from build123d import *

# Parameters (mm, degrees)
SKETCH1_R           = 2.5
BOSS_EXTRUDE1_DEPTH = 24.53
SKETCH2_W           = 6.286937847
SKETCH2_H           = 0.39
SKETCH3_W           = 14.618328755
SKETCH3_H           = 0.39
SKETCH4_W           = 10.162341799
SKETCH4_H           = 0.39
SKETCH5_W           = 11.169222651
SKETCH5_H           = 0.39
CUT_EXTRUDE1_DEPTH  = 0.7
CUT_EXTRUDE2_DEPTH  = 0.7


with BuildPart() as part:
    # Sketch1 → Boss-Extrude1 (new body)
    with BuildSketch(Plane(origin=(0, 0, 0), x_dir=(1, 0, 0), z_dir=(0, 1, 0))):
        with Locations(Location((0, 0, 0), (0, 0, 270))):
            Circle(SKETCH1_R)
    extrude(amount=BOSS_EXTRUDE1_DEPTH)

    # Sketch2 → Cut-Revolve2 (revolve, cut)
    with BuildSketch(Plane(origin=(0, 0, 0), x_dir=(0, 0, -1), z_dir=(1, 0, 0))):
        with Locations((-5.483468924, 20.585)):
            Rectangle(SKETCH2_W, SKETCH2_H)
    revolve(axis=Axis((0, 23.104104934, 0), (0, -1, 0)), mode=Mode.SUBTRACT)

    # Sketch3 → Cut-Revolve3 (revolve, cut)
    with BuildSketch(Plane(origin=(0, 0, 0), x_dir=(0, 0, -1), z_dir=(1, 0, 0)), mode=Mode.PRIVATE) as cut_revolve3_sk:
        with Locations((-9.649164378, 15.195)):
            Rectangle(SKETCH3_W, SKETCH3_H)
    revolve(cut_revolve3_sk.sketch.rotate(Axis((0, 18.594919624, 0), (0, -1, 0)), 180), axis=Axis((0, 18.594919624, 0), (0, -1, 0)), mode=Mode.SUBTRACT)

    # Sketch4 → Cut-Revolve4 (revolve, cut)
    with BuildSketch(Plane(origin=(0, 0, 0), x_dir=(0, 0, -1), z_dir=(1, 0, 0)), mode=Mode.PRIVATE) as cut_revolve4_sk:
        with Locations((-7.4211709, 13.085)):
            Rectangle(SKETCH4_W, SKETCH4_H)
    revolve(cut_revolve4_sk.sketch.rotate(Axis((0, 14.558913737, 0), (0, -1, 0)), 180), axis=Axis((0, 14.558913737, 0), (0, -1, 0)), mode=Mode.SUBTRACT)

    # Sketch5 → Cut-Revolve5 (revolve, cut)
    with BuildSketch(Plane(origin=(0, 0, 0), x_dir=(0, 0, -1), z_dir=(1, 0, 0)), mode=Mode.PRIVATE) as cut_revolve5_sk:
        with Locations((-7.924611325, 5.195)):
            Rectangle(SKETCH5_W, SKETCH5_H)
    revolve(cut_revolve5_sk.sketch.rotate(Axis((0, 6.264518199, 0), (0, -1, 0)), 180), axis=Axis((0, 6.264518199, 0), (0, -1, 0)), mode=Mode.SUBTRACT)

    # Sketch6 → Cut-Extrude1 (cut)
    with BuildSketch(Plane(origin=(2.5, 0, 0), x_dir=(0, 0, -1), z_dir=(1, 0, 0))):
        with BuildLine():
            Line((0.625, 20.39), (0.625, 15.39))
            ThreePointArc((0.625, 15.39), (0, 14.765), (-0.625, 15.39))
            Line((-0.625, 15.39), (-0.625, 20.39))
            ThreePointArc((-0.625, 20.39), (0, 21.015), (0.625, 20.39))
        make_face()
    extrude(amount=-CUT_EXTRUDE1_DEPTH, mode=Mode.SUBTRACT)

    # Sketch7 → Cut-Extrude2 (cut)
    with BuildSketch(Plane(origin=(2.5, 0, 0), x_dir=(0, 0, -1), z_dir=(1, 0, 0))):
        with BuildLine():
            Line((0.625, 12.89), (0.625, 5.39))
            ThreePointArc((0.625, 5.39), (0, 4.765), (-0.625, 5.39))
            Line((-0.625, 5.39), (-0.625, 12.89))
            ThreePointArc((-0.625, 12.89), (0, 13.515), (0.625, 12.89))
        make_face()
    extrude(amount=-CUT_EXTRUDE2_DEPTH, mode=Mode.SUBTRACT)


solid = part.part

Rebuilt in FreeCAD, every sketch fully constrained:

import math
import FreeCAD as App
import Part
import Sketcher
from FreeCAD import Vector

doc = App.newDocument("Part")
body = doc.addObject("PartDesign::Body", "Body")

sketch1 = body.newObject("Sketcher::SketchObject", "Sketch")
sketch1.AttachmentSupport = (doc.getObject("XZ_Plane"), [""])
sketch1.MapMode = "FlatFace"
sketch1.addGeometry(Part.Circle(Vector(0, 0, 0), Vector(0, 0, 1), 2.5), False)
sketch1.addConstraint(Sketcher.Constraint("Coincident", 0, 3, -1, 1))
sketch1.addConstraint(Sketcher.Constraint("Diameter", 0, 5.0))
pad1 = body.newObject("PartDesign::Pad", "Pad")
pad1.Profile = sketch1
pad1.Length = 24.53
pad1.Reversed = True

sketch2 = body.newObject("Sketcher::SketchObject", "Sketch001")
sketch2.AttachmentSupport = (doc.getObject("YZ_Plane"), [""])
sketch2.MapMode = "FlatFace"
sketch2.addGeometry(Part.LineSegment(Vector(20.78, 8.63, 0), Vector(20.39, 8.63, 0)), False)
sketch2.addGeometry(Part.LineSegment(Vector(20.39, 8.63, 0), Vector(20.39, 2.34, 0)), False)
sketch2.addGeometry(Part.LineSegment(Vector(20.39, 2.34, 0), Vector(20.78, 2.34, 0)), False)
sketch2.addGeometry(Part.LineSegment(Vector(20.78, 2.34, 0), Vector(20.78, 8.63, 0)), False)
sketch2.addConstraint(Sketcher.Constraint("Coincident", 0, 2, 1, 1))
sketch2.addConstraint(Sketcher.Constraint("Coincident", 1, 2, 2, 1))
sketch2.addConstraint(Sketcher.Constraint("Coincident", 2, 2, 3, 1))
sketch2.addConstraint(Sketcher.Constraint("Coincident", 3, 2, 0, 1))
sketch2.addConstraint(Sketcher.Constraint("Horizontal", 0))
sketch2.addConstraint(Sketcher.Constraint("Vertical", 1))
sketch2.addConstraint(Sketcher.Constraint("Horizontal", 2))
sketch2.addConstraint(Sketcher.Constraint("Vertical", 3))
sketch2.addConstraint(Sketcher.Constraint("DistanceX", 0, 2, 0, 1, 0.39))
sketch2.addConstraint(Sketcher.Constraint("DistanceX", -1, 1, 0, 2, 20.39))
sketch2.addConstraint(Sketcher.Constraint("DistanceY", -1, 1, 1, 2, 2.34))
sketch2.addConstraint(Sketcher.Constraint("DistanceY", 1, 2, 1, 1, 6.286938))
groove = body.newObject("PartDesign::Groove", "Groove")
groove.Profile = sketch2
groove.ReferenceAxis = (sketch2, ["H_Axis"])
groove.Angle = 360

sketch3 = body.newObject("Sketcher::SketchObject", "Sketch002")
sketch3.AttachmentSupport = (doc.getObject("YZ_Plane"), [""])
sketch3.MapMode = "FlatFace"
sketch3.addGeometry(Part.LineSegment(Vector(15.39, 16.96, 0), Vector(15, 16.96, 0)), False)
sketch3.addGeometry(Part.LineSegment(Vector(15, 16.96, 0), Vector(15, 2.34, 0)), False)
sketch3.addGeometry(Part.LineSegment(Vector(15, 2.34, 0), Vector(15.39, 2.34, 0)), False)
sketch3.addGeometry(Part.LineSegment(Vector(15.39, 2.34, 0), Vector(15.39, 16.96, 0)), False)
sketch3.addConstraint(Sketcher.Constraint("Coincident", 0, 2, 1, 1))
sketch3.addConstraint(Sketcher.Constraint("Coincident", 1, 2, 2, 1))
sketch3.addConstraint(Sketcher.Constraint("Coincident", 2, 2, 3, 1))
sketch3.addConstraint(Sketcher.Constraint("Coincident", 3, 2, 0, 1))
sketch3.addConstraint(Sketcher.Constraint("Horizontal", 0))
sketch3.addConstraint(Sketcher.Constraint("Vertical", 1))
sketch3.addConstraint(Sketcher.Constraint("Horizontal", 2))
sketch3.addConstraint(Sketcher.Constraint("Vertical", 3))
sketch3.addConstraint(Sketcher.Constraint("DistanceX", -1, 1, 0, 2, 15.0))
sketch3.addConstraint(Sketcher.Constraint("DistanceX", 0, 2, 0, 1, 0.39))
sketch3.addConstraint(Sketcher.Constraint("DistanceY", -1, 1, 1, 2, 2.34))
sketch3.addConstraint(Sketcher.Constraint("DistanceY", 1, 2, 1, 1, 14.618329))
groove2 = body.newObject("PartDesign::Groove", "Groove001")
groove2.Profile = sketch3
groove2.ReferenceAxis = (sketch3, ["H_Axis"])
groove2.Angle = 360

sketch4 = body.newObject("Sketcher::SketchObject", "Sketch003")
sketch4.AttachmentSupport = (doc.getObject("YZ_Plane"), [""])
sketch4.MapMode = "FlatFace"
sketch4.addGeometry(Part.LineSegment(Vector(13.28, 12.5, 0), Vector(12.89, 12.5, 0)), False)
sketch4.addGeometry(Part.LineSegment(Vector(12.89, 12.5, 0), Vector(12.89, 2.34, 0)), False)
sketch4.addGeometry(Part.LineSegment(Vector(12.89, 2.34, 0), Vector(13.28, 2.34, 0)), False)
sketch4.addGeometry(Part.LineSegment(Vector(13.28, 2.34, 0), Vector(13.28, 12.5, 0)), False)
sketch4.addConstraint(Sketcher.Constraint("Coincident", 0, 2, 1, 1))
sketch4.addConstraint(Sketcher.Constraint("Coincident", 1, 2, 2, 1))
sketch4.addConstraint(Sketcher.Constraint("Coincident", 2, 2, 3, 1))
sketch4.addConstraint(Sketcher.Constraint("Coincident", 3, 2, 0, 1))
sketch4.addConstraint(Sketcher.Constraint("Horizontal", 0))
sketch4.addConstraint(Sketcher.Constraint("Vertical", 1))
sketch4.addConstraint(Sketcher.Constraint("Horizontal", 2))
sketch4.addConstraint(Sketcher.Constraint("Vertical", 3))
sketch4.addConstraint(Sketcher.Constraint("DistanceX", 0, 2, 0, 1, 0.39))
sketch4.addConstraint(Sketcher.Constraint("DistanceX", -1, 1, 0, 2, 12.89))
sketch4.addConstraint(Sketcher.Constraint("DistanceY", -1, 1, 1, 2, 2.34))
sketch4.addConstraint(Sketcher.Constraint("DistanceY", 1, 2, 1, 1, 10.162342))
groove3 = body.newObject("PartDesign::Groove", "Groove002")
groove3.Profile = sketch4
groove3.ReferenceAxis = (sketch4, ["H_Axis"])
groove3.Angle = 360

sketch5 = body.newObject("Sketcher::SketchObject", "Sketch004")
sketch5.AttachmentSupport = (doc.getObject("YZ_Plane"), [""])
sketch5.MapMode = "FlatFace"
sketch5.addGeometry(Part.LineSegment(Vector(5.39, 13.51, 0), Vector(5, 13.51, 0)), False)
sketch5.addGeometry(Part.LineSegment(Vector(5, 13.51, 0), Vector(5, 2.34, 0)), False)
sketch5.addGeometry(Part.LineSegment(Vector(5, 2.34, 0), Vector(5.39, 2.34, 0)), False)
sketch5.addGeometry(Part.LineSegment(Vector(5.39, 2.34, 0), Vector(5.39, 13.51, 0)), False)
sketch5.addConstraint(Sketcher.Constraint("Coincident", 0, 2, 1, 1))
sketch5.addConstraint(Sketcher.Constraint("Coincident", 1, 2, 2, 1))
sketch5.addConstraint(Sketcher.Constraint("Coincident", 2, 2, 3, 1))
sketch5.addConstraint(Sketcher.Constraint("Coincident", 3, 2, 0, 1))
sketch5.addConstraint(Sketcher.Constraint("Horizontal", 0))
sketch5.addConstraint(Sketcher.Constraint("Vertical", 1))
sketch5.addConstraint(Sketcher.Constraint("Horizontal", 2))
sketch5.addConstraint(Sketcher.Constraint("Vertical", 3))
sketch5.addConstraint(Sketcher.Constraint("DistanceX", -1, 1, 0, 2, 5.0))
sketch5.addConstraint(Sketcher.Constraint("DistanceX", 0, 2, 0, 1, 0.39))
sketch5.addConstraint(Sketcher.Constraint("DistanceY", -1, 1, 1, 2, 2.34))
sketch5.addConstraint(Sketcher.Constraint("DistanceY", 1, 2, 1, 1, 11.169223))
groove4 = body.newObject("PartDesign::Groove", "Groove003")
groove4.Profile = sketch5
groove4.ReferenceAxis = (sketch5, ["H_Axis"])
groove4.Angle = 360

sketch6 = body.newObject("Sketcher::SketchObject", "Sketch005")
sketch6.AttachmentSupport = (doc.getObject("YZ_Plane"), [""])
sketch6.MapMode = "FlatFace"
sketch6.AttachmentOffset = App.Placement(Vector(0, 0, 2.5), App.Rotation())
sketch6.addGeometry(Part.LineSegment(Vector(15.4, -0.6, 0), Vector(20.4, -0.6, 0)), False)
sketch6.addGeometry(Part.ArcOfCircle(Part.Circle(Vector(20.4, 0, 0), Vector(0, 0, 1), 0.6), math.radians(-90), math.radians(90)), False)
sketch6.addGeometry(Part.LineSegment(Vector(20.4, 0.6, 0), Vector(15.4, 0.6, 0)), False)
sketch6.addGeometry(Part.ArcOfCircle(Part.Circle(Vector(15.4, 0, 0), Vector(0, 0, 1), 0.6), math.radians(90), math.radians(270)), False)
sketch6.addConstraint(Sketcher.Constraint("Tangent", 0, 2, 1, 1))
sketch6.addConstraint(Sketcher.Constraint("Tangent", 1, 2, 2, 1))
sketch6.addConstraint(Sketcher.Constraint("Tangent", 2, 2, 3, 1))
sketch6.addConstraint(Sketcher.Constraint("Tangent", 3, 2, 0, 1))
sketch6.addConstraint(Sketcher.Constraint("Horizontal", 0))
sketch6.addConstraint(Sketcher.Constraint("Horizontal", 2))
sketch6.addConstraint(Sketcher.Constraint("PointOnObject", 1, 3, -1))
sketch6.addConstraint(Sketcher.Constraint("DistanceX", 0, 1, 0, 2, 5.0))
sketch6.addConstraint(Sketcher.Constraint("Radius", 1, 0.625))
sketch6.addConstraint(Sketcher.Constraint("DistanceX", -1, 1, 1, 3, 20.39))
pocket1 = body.newObject("PartDesign::Pocket", "Pocket")
pocket1.Profile = sketch6
pocket1.Length = 0.7

sketch7 = body.newObject("Sketcher::SketchObject", "Sketch006")
sketch7.AttachmentSupport = (doc.getObject("YZ_Plane"), [""])
sketch7.MapMode = "FlatFace"
sketch7.AttachmentOffset = App.Placement(Vector(0, 0, 2.5), App.Rotation())
sketch7.addGeometry(Part.LineSegment(Vector(5.4, -0.6, 0), Vector(12.9, -0.6, 0)), False)
sketch7.addGeometry(Part.ArcOfCircle(Part.Circle(Vector(12.9, 0, 0), Vector(0, 0, 1), 0.6), math.radians(-90), math.radians(90)), False)
sketch7.addGeometry(Part.LineSegment(Vector(12.9, 0.6, 0), Vector(5.4, 0.6, 0)), False)
sketch7.addGeometry(Part.ArcOfCircle(Part.Circle(Vector(5.4, 0, 0), Vector(0, 0, 1), 0.6), math.radians(90), math.radians(270)), False)
sketch7.addConstraint(Sketcher.Constraint("Tangent", 0, 2, 1, 1))
sketch7.addConstraint(Sketcher.Constraint("Tangent", 1, 2, 2, 1))
sketch7.addConstraint(Sketcher.Constraint("Tangent", 2, 2, 3, 1))
sketch7.addConstraint(Sketcher.Constraint("Tangent", 3, 2, 0, 1))
sketch7.addConstraint(Sketcher.Constraint("Horizontal", 0))
sketch7.addConstraint(Sketcher.Constraint("Horizontal", 2))
sketch7.addConstraint(Sketcher.Constraint("PointOnObject", 1, 3, -1))
sketch7.addConstraint(Sketcher.Constraint("DistanceX", 0, 1, 0, 2, 7.5))
sketch7.addConstraint(Sketcher.Constraint("Radius", 1, 0.625))
sketch7.addConstraint(Sketcher.Constraint("DistanceX", -1, 1, 1, 3, 12.89))
pocket2 = body.newObject("PartDesign::Pocket", "Pocket001")
pocket2.Profile = sketch7
pocket2.Length = 0.7

doc.recompute()
